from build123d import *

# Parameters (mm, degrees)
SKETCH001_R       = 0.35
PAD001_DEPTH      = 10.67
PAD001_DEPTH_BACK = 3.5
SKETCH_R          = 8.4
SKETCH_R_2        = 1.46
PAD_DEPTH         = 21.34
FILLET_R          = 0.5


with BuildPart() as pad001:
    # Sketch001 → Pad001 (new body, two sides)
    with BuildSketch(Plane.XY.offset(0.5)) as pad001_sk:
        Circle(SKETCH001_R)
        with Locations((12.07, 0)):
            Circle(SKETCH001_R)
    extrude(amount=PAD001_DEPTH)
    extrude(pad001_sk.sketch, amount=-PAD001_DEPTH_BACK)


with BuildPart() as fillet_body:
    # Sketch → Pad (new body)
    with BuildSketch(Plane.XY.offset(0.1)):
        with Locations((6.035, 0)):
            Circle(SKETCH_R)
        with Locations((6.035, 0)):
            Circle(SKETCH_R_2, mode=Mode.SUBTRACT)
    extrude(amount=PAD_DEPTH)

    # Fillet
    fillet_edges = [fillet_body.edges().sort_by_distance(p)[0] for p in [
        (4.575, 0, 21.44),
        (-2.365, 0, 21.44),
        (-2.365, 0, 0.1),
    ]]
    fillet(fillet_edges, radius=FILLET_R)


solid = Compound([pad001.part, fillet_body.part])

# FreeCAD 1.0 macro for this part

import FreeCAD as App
import Part
import Sketcher
from FreeCAD import Vector


def edges_at(feature, points):
    """Names of the edges that pass closest to the given points."""
    edges = feature.Shape.Edges
    near = lambda p: min(range(len(edges)), key=lambda i: edges[i].distToShape(Part.Vertex(*p))[0])
    return sorted({f"Edge{near(p) + 1}" for p in points})

doc = App.newDocument("Part")
params = doc.addObject("Spreadsheet::Sheet", "Params")
for row, (alias, value) in enumerate([
    ("sketch1_diameter", "0.7 mm"),
    ("pad1_length", "10.67 mm"),
    ("pad1_length2", "3.5 mm"),
    ("sketch2_diameter", "16.8 mm"),
    ("sketch2_diameter2", "2.92 mm"),
    ("pad2_length", "21.34 mm"),
    ("fillet_radius", "0.5 mm"),
], start=1):
    params.set(f"A{row}", alias)
    params.set(f"B{row}", "=" + value)
    params.setAlias(f"B{row}", alias)

body = doc.addObject("PartDesign::Body", "Body")
body.AllowCompound = True

sketch1 = body.newObject("Sketcher::SketchObject", "Sketch")
sketch1.AttachmentSupport = (doc.getObject("XY_Plane"), [""])
sketch1.MapMode = "FlatFace"
sketch1.AttachmentOffset = App.Placement(Vector(0, 0, 0.5), App.Rotation())
sketch1.addGeometry(Part.Circle(Vector(0, 0, 0), Vector(0, 0, 1), 0.35), False)
sketch1.addGeometry(Part.Circle(Vector(12.07, 0, 0), Vector(0, 0, 1), 0.35), False)
sketch1.addConstraint(Sketcher.Constraint("Coincident", 0, 3, -1, 1))
sketch1.addConstraint(Sketcher.Constraint("Equal", 0, 1))
sketch1.addConstraint(Sketcher.Constraint("PointOnObject", 1, 3, -1))
sketch1.addConstraint(Sketcher.Constraint("Diameter", 0, 0.7))
sketch1.addConstraint(Sketcher.Constraint("DistanceX", -1, 1, 1, 3, 12.07))
sketch1.setExpression("Constraints[3]", "Params.sketch1_diameter")
pad1 = body.newObject("PartDesign::Pad", "Pad")
pad1.Profile = sketch1
pad1.Type = "TwoLengths"
pad1.setExpression("Length", "Params.pad1_length")
pad1.setExpression("Length2", "Params.pad1_length2")
body2 = doc.addObject("PartDesign::Body", "Body001")

sketch2 = body2.newObject("Sketcher::SketchObject", "Sketch001")
sketch2.AttachmentSupport = (doc.getObject("XY_Plane001"), [""])
sketch2.MapMode = "FlatFace"
sketch2.AttachmentOffset = App.Placement(Vector(0, 0, 0.1), App.Rotation())
sketch2.addGeometry(Part.Circle(Vector(6, 0, 0), Vector(0, 0, 1), 8.4), False)
sketch2.addGeometry(Part.Circle(Vector(6, 0, 0), Vector(0, 0, 1), 1.5), False)
sketch2.addConstraint(Sketcher.Constraint("Coincident", 1, 3, 0, 3))
sketch2.addConstraint(Sketcher.Constraint("PointOnObject", 0, 3, -1))
sketch2.addConstraint(Sketcher.Constraint("Diameter", 0, 16.8))
sketch2.addConstraint(Sketcher.Constraint("Diameter", 1, 2.92))
sketch2.addConstraint(Sketcher.Constraint("DistanceX", -1, 1, 0, 3, 6.035))
sketch2.setExpression("Constraints[2]", "Params.sketch2_diameter")
sketch2.setExpression("Constraints[3]", "Params.sketch2_diameter2")
pad2 = body2.newObject("PartDesign::Pad", "Pad001")
pad2.Profile = sketch2
pad2.setExpression("Length", "Params.pad2_length")
doc.recompute()

fillet = body2.newObject("PartDesign::Fillet", "Fillet")
fillet.Base = (pad2, edges_at(pad2, [(4.575, 0, 21.44), (-2.365, 0, 21.44), (-2.365, 0, 0.1)]))
fillet.setExpression("Radius", "Params.fillet_radius")

doc.recompute()
